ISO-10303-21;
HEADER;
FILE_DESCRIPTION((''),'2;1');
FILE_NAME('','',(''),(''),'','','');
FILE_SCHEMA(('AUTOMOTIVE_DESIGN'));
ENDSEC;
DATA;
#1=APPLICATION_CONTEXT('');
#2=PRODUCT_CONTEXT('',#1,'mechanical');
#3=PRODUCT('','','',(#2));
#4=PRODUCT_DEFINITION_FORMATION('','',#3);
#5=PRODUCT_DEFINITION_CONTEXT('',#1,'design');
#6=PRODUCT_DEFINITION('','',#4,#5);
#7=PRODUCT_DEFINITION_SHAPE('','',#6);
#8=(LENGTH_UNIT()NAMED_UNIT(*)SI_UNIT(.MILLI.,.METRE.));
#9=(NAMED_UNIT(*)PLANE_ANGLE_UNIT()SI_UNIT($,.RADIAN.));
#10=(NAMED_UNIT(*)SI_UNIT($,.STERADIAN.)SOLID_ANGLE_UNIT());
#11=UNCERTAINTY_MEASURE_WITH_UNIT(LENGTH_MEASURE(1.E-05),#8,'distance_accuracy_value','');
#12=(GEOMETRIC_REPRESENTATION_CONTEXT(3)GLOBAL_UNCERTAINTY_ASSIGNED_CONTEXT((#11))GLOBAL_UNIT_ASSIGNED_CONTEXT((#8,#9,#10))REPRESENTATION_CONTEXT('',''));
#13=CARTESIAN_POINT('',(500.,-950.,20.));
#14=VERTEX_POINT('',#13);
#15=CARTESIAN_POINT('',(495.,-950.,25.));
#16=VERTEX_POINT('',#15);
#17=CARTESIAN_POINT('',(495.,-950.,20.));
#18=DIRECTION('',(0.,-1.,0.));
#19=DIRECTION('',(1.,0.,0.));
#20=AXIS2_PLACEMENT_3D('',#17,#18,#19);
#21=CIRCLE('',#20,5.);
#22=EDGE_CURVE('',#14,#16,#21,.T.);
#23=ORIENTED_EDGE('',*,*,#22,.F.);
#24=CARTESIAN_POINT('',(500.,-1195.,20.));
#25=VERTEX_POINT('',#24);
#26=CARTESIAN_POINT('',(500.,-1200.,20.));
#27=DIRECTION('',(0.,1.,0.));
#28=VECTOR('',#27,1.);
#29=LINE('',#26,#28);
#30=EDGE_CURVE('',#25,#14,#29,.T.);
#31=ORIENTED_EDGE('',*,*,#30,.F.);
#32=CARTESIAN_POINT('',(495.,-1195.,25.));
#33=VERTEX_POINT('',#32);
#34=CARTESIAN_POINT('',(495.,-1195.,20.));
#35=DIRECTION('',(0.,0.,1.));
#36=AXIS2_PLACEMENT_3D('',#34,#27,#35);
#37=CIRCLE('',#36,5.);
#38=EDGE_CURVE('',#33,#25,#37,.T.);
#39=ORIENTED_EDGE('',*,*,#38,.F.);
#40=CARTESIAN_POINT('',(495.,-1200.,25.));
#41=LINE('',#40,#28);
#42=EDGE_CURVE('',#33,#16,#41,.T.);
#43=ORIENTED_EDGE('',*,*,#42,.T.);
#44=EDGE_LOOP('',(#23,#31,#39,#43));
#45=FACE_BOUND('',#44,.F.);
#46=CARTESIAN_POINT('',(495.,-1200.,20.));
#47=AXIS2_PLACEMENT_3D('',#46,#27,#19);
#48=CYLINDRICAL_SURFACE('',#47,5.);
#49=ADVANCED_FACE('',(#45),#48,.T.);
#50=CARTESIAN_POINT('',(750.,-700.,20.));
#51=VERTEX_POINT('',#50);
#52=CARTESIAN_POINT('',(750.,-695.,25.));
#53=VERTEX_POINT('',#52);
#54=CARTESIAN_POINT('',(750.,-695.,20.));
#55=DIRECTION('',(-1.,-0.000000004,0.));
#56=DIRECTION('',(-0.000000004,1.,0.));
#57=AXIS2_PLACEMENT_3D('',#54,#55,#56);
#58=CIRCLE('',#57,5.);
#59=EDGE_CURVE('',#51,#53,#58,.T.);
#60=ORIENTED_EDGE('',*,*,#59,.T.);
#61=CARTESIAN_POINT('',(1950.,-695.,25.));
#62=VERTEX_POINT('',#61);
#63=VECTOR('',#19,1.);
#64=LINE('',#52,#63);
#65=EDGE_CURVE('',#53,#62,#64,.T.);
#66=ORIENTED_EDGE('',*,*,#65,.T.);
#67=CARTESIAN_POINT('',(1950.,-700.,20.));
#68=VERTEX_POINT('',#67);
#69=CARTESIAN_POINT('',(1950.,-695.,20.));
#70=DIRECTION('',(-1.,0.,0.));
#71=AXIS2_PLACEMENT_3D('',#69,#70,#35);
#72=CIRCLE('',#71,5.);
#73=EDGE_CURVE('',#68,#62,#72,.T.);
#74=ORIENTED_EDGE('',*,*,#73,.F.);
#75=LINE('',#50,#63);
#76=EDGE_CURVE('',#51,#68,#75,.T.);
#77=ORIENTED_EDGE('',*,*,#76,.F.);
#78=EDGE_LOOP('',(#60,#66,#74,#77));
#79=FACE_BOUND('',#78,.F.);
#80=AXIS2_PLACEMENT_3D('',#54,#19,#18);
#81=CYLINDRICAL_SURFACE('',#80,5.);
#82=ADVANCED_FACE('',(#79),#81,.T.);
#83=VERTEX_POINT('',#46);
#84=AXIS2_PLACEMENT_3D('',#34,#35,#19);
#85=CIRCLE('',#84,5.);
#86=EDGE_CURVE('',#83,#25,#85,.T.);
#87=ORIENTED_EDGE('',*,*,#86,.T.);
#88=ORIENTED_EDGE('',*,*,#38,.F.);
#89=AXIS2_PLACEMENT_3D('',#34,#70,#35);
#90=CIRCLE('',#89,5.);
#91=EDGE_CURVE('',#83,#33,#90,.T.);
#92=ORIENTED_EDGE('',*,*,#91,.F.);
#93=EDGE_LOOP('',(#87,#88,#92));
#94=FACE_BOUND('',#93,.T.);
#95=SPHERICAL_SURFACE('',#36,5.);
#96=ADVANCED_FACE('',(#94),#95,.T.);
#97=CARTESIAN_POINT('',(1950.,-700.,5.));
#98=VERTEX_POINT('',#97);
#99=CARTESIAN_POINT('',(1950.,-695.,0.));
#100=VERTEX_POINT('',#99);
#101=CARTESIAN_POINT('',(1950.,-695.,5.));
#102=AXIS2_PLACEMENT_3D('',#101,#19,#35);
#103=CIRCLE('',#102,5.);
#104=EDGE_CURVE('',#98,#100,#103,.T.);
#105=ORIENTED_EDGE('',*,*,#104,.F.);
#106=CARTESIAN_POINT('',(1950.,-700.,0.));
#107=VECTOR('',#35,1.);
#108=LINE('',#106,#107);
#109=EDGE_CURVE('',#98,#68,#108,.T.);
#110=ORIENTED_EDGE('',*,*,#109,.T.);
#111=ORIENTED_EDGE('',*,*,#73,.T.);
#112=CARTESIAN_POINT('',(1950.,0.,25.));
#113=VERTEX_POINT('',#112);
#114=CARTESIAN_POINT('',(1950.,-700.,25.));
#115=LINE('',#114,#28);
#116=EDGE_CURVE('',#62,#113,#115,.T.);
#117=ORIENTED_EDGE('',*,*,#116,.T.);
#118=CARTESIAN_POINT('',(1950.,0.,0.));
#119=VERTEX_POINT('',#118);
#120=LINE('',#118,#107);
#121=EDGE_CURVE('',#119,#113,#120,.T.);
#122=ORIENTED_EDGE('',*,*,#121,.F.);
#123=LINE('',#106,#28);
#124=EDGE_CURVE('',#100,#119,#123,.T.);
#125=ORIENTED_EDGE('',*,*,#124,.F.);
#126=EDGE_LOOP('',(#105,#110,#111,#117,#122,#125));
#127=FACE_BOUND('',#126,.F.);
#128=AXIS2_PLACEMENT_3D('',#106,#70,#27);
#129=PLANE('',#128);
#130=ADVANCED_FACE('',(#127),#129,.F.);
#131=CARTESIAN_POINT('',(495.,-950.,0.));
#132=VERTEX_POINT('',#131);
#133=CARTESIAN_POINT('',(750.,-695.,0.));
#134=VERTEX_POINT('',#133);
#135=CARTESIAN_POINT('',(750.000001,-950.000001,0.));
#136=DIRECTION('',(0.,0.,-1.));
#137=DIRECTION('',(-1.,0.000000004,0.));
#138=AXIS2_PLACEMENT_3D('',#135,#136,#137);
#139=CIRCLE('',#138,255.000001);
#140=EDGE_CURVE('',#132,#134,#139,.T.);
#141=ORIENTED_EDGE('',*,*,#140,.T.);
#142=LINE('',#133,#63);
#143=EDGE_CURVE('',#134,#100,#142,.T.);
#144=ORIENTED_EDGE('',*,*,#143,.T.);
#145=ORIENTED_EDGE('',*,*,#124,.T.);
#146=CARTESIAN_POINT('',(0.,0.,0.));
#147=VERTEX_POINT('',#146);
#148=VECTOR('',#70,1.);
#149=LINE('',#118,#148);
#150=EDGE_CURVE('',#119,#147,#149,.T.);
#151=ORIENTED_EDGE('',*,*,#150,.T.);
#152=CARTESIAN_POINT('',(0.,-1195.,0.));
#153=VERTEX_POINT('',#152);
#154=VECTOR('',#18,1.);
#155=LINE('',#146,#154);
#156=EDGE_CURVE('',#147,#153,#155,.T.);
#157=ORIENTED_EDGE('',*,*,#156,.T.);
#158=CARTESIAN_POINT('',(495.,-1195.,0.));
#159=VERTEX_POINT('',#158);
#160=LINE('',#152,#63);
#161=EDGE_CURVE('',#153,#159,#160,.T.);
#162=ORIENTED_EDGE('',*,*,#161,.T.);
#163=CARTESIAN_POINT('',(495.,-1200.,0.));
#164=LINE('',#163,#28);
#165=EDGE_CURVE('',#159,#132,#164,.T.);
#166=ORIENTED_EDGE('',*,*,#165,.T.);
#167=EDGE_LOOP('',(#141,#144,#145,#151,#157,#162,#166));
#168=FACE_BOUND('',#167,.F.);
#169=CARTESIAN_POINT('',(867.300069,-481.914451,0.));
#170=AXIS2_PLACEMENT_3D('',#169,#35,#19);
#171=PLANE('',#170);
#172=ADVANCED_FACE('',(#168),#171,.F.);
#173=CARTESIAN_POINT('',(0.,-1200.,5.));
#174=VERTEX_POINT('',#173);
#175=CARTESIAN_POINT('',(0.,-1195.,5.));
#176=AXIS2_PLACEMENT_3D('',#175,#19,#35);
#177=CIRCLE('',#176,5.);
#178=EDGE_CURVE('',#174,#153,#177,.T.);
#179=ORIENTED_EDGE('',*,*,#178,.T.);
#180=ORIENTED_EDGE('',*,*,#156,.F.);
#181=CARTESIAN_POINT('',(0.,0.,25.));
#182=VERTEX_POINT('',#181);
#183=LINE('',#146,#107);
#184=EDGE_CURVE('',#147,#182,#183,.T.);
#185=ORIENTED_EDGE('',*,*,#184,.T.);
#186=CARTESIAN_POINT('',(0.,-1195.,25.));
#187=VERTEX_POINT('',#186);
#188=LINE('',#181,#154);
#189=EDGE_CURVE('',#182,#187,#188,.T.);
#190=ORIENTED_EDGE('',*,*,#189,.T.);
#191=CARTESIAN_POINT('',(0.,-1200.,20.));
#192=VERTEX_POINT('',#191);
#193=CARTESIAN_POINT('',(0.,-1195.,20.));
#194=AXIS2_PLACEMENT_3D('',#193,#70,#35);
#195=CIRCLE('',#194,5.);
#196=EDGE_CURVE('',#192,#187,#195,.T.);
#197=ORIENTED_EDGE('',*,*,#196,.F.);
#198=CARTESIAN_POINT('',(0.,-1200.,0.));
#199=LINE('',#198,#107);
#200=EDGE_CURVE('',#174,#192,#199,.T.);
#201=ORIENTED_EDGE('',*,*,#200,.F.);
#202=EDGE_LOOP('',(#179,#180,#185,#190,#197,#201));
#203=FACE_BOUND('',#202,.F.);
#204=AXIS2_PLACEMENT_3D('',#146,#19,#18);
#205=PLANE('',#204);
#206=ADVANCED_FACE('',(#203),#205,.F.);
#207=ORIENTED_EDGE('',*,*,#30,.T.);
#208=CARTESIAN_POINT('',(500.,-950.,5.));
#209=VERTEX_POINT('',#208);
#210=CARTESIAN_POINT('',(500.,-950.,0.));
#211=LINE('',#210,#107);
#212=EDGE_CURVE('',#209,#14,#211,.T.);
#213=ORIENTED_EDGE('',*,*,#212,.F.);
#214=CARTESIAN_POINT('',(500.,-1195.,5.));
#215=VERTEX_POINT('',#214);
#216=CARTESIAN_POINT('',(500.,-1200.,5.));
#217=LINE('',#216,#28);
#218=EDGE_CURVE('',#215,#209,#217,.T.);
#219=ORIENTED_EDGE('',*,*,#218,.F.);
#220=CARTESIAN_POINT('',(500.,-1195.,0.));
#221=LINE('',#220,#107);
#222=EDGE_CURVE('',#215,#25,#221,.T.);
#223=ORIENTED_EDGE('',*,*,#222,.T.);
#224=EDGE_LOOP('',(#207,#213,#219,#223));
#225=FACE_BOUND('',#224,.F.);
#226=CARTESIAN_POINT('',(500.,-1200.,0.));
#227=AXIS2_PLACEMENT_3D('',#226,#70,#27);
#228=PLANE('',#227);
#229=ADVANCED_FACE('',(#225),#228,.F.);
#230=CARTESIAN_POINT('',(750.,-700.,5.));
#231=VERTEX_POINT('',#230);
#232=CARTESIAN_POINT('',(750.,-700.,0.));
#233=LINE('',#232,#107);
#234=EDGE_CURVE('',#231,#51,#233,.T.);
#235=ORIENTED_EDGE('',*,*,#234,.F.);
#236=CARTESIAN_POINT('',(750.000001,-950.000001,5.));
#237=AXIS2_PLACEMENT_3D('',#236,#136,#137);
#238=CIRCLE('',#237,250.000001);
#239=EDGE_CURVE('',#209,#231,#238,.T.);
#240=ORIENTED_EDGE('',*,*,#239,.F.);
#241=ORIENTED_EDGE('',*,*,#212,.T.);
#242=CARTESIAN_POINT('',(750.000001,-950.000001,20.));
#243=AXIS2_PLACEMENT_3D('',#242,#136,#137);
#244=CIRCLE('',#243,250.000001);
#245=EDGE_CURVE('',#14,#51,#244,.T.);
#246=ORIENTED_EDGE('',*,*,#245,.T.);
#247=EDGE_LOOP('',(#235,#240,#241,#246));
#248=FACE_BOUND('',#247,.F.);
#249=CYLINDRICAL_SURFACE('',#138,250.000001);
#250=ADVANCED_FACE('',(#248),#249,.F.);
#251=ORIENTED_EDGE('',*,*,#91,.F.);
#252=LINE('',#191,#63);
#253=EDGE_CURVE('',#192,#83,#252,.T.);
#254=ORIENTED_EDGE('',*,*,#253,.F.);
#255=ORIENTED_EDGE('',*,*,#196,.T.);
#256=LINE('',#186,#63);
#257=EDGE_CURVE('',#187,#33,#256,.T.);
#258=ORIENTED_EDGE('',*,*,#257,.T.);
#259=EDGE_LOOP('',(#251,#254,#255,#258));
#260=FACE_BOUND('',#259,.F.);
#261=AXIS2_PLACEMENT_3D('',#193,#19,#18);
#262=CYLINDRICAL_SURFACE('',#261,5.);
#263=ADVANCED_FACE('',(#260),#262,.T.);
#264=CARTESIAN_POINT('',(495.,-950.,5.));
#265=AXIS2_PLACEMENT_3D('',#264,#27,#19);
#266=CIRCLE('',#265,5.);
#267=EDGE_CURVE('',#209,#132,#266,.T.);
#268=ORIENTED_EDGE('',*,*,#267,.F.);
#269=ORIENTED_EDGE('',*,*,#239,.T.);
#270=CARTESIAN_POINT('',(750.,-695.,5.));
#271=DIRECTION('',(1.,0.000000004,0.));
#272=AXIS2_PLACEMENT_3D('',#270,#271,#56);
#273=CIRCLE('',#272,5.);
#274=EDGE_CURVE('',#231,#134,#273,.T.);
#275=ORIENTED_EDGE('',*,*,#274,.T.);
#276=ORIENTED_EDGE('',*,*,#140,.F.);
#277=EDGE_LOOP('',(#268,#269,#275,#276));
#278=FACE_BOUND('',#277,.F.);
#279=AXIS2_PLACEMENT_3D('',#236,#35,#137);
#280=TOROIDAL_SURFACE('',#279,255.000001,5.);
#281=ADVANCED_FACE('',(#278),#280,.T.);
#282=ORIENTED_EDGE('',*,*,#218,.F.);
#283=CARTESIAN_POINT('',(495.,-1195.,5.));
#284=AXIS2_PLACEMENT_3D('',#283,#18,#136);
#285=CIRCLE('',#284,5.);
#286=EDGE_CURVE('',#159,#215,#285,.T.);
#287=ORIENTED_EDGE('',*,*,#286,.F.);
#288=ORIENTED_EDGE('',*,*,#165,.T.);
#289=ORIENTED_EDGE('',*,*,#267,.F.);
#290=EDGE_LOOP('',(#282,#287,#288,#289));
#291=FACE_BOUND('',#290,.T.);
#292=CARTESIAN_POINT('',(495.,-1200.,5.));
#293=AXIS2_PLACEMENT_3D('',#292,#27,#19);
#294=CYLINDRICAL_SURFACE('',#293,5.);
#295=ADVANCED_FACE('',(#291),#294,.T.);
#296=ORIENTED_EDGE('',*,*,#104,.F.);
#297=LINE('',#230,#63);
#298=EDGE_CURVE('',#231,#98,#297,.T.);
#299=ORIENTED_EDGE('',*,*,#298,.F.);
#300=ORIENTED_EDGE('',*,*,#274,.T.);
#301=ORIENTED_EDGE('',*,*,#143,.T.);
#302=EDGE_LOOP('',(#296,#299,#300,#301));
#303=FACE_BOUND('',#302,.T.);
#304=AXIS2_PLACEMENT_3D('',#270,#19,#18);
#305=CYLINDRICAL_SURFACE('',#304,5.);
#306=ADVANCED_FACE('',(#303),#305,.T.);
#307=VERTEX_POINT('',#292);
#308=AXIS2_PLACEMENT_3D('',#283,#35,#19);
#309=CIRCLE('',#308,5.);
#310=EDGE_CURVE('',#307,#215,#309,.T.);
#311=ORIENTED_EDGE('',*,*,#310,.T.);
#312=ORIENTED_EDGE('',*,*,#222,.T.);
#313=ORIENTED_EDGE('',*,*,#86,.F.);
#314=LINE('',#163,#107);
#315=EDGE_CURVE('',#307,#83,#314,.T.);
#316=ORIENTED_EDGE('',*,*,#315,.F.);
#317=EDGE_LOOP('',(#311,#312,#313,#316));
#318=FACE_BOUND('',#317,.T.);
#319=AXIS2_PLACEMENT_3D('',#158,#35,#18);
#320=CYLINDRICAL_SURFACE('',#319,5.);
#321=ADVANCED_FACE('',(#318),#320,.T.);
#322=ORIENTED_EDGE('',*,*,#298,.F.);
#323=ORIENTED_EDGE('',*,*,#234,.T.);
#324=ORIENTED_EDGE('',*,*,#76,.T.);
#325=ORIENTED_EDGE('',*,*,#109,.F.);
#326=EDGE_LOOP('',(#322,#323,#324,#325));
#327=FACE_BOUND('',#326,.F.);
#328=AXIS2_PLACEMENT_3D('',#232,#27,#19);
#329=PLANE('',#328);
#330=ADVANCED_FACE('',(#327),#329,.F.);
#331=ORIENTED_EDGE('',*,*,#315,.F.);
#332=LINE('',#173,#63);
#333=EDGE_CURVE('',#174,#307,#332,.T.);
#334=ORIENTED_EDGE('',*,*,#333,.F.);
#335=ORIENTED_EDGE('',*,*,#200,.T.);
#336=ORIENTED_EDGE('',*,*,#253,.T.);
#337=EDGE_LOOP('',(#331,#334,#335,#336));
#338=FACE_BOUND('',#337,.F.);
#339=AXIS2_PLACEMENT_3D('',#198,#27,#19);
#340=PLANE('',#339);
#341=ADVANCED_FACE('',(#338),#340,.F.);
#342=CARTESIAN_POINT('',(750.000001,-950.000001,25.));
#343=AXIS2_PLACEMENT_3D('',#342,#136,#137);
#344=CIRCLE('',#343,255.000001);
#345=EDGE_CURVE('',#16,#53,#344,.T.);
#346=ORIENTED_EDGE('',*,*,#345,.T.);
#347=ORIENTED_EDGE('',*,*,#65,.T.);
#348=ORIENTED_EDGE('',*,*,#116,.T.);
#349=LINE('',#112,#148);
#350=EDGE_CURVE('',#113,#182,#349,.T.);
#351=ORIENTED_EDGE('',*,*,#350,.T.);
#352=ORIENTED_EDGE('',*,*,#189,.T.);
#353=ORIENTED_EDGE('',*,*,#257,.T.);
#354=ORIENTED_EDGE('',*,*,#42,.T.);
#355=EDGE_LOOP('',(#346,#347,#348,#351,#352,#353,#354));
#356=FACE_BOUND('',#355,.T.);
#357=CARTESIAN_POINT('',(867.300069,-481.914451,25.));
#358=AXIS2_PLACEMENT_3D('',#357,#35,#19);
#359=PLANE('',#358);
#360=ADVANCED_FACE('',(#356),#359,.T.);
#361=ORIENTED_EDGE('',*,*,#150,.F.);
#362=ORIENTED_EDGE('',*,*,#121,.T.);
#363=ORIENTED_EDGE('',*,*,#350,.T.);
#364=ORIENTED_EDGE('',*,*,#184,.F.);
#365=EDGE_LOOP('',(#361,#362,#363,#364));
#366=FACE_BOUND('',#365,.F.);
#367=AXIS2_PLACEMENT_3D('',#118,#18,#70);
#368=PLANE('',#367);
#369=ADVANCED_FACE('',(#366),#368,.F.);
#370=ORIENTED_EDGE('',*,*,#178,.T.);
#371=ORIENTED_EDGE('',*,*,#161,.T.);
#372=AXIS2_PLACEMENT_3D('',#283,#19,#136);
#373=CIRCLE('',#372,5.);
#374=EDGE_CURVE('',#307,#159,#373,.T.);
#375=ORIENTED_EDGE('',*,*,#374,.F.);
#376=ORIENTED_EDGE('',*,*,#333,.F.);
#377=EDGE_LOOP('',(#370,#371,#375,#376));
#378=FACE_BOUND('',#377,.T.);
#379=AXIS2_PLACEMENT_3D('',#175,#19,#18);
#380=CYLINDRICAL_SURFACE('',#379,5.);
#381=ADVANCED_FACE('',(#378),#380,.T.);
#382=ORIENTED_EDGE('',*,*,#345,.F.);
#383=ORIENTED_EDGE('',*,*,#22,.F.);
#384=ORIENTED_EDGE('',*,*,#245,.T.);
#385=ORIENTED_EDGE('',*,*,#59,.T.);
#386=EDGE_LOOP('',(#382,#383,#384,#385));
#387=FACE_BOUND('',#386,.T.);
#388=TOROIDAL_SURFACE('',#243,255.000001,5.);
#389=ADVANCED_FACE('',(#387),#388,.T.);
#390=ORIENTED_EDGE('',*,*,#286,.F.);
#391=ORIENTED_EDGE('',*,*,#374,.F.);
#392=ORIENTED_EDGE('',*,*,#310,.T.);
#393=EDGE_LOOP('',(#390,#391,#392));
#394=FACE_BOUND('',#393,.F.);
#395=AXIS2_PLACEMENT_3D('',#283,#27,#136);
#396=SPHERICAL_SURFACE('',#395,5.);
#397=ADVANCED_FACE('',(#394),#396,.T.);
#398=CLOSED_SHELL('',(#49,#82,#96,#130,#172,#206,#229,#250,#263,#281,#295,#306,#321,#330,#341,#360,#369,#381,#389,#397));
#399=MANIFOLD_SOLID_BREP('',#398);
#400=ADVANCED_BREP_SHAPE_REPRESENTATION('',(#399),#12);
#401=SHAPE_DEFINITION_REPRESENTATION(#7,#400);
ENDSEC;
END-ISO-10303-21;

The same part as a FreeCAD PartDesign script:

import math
import FreeCAD as App
import Part
import Sketcher
from FreeCAD import Vector
Q = App.Units.Quantity


def edges_at(feature, points):
    """Names of the edges that pass closest to the given points."""
    edges = feature.Shape.Edges
    near = lambda p: min(range(len(edges)), key=lambda i: edges[i].distToShape(Part.Vertex(*p))[0])
    return sorted({f"Edge{near(p) + 1}" for p in points})

doc = App.newDocument("Part")
body = doc.addObject("PartDesign::Body", "Body")

# Sketch on XY plane
sketch1 = body.newObject("Sketcher::SketchObject", "Sketch")
sketch1.AttachmentSupport = (doc.getObject("XY_Plane"), [""])
sketch1.MapMode = "FlatFace"
sketch1.addGeometry(Part.LineSegment(Vector(0, 0, 0), Vector(0, -1200, 0)), False)
sketch1.addGeometry(Part.LineSegment(Vector(0, -1200, 0), Vector(500, -1200, 0)), False)
sketch1.addGeometry(Part.LineSegment(Vector(500, -1200, 0), Vector(500, -950, 0)), False)
sketch1.addGeometry(Part.ArcOfCircle(Part.Circle(Vector(750, -950, 0), Vector(0, 0, 1), 250), math.radians(90), math.radians(180)), False)
sketch1.addGeometry(Part.LineSegment(Vector(750, -700, 0), Vector(1950, -700, 0)), False)
sketch1.addGeometry(Part.LineSegment(Vector(1950, -700, 0), Vector(1950, 0, 0)), False)
sketch1.addGeometry(Part.LineSegment(Vector(1950, 0, 0), Vector(0, 0, 0)), False)
sketch1.addConstraint(Sketcher.Constraint("Coincident", 0, 2, 1, 1))
sketch1.addConstraint(Sketcher.Constraint("Coincident", 1, 2, 2, 1))
sketch1.addConstraint(Sketcher.Constraint("Tangent", 2, 2, 3, 2))
sketch1.addConstraint(Sketcher.Constraint("Tangent", 3, 1, 4, 1))
sketch1.addConstraint(Sketcher.Constraint("Coincident", 4, 2, 5, 1))
sketch1.addConstraint(Sketcher.Constraint("Coincident", 5, 2, 6, 1))
sketch1.addConstraint(Sketcher.Constraint("Coincident", 6, 2, 0, 1))
sketch1.addConstraint(Sketcher.Constraint("Vertical", 0))
sketch1.addConstraint(Sketcher.Constraint("Horizontal", 1))
sketch1.addConstraint(Sketcher.Constraint("Vertical", 2))
sketch1.addConstraint(Sketcher.Constraint("Horizontal", 4))
sketch1.addConstraint(Sketcher.Constraint("Vertical", 5))
sketch1.addConstraint(Sketcher.Constraint("Horizontal", 6))
sketch1.addConstraint(Sketcher.Constraint("Coincident", 6, 2, -1, 1))
sketch1.addConstraint(Sketcher.Constraint("Equal", 4, 0))
sketch1.addConstraint(Sketcher.Constraint("Radius", 3, Q("250.000001 mm")))
sketch1.addConstraint(Sketcher.Constraint("DistanceX", 1, 1, 1, 2, Q("500 mm")))
sketch1.addConstraint(Sketcher.Constraint("DistanceX", 4, 1, 4, 2, Q("1200 mm")))
sketch1.addConstraint(Sketcher.Constraint("DistanceY", 2, 1, 2, 2, Q("250 mm")))
pad1 = body.newObject("PartDesign::Pad", "Pad")
pad1.Profile = sketch1
pad1.Length = 25
doc.recompute()

fillet = body.newObject("PartDesign::Fillet", "Fillet")
fillet.Base = (pad1, edges_at(pad1, [
    (1350, -700, 25),
    (1350, -700, 0),
    (250, -1200, 25),
    (250, -1200, 0),
    (500, -1200, 12.5),
]))
fillet.Radius = 5

doc.recompute()
